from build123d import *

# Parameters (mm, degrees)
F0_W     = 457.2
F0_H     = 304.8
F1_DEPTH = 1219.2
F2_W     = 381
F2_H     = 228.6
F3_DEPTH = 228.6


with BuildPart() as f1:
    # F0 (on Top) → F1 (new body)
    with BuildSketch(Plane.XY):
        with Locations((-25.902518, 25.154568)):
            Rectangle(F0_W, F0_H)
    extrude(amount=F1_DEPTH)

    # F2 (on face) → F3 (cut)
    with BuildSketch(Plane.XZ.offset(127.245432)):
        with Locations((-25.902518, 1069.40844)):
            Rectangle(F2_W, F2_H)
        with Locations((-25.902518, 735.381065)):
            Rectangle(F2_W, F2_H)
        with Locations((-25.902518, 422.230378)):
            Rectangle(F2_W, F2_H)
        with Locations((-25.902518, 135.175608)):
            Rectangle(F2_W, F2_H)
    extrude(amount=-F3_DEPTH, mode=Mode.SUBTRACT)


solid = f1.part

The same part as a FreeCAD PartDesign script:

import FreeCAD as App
import Part
import Sketcher
Q = App.Units.Quantity


def add_polygon(sketch, points):
    """Adds a closed chain of lines whose ends are joined by coincident constraints."""
    first, n = sketch.GeometryCount, len(points)
    for a, b in zip(points, points[1:] + points[:1]):
        sketch.addGeometry(Part.LineSegment(App.Vector(*a, 0), App.Vector(*b, 0)), False)
    for i in range(n):
        sketch.addConstraint(Sketcher.Constraint("Coincident", first + i, 2, first + (i + 1) % n, 1))

doc = App.newDocument("Part")
body = doc.addObject("PartDesign::Body", "Body")

# Sketch on XY plane
sketch1 = body.newObject("Sketcher::SketchObject", "Sketch")
sketch1.AttachmentSupport = (doc.getObject("XY_Plane"), [""])
sketch1.MapMode = "FlatFace"
add_polygon(sketch1, [(-254.502518, 177.554568), (-254.502518, -127.245432), (202.697482, -127.245432), (202.697482, 177.554568)])  # lines 0-3
sketch1.addConstraint([
    Sketcher.Constraint("Vertical", 0),
    Sketcher.Constraint("Horizontal", 1),
    Sketcher.Constraint("Vertical", 2),
    Sketcher.Constraint("Horizontal", 3),
    Sketcher.Constraint("DistanceX", 1, 1, 1, 2, Q("18 in")),
    Sketcher.Constraint("DistanceY", 0, 2, 0, 1, Q("12 in")),
    Sketcher.Constraint("DistanceX", 0, 2, -1, 1, 254.502518),
    Sketcher.Constraint("DistanceY", 0, 2, -1, 1, 127.245432),
])
pad1 = body.newObject("PartDesign::Pad", "Pad")
pad1.Profile = sketch1
pad1.Length = Q("48 in")

# Sketch on XZ plane
sketch2 = body.newObject("Sketcher::SketchObject", "Sketch001")
sketch2.AttachmentSupport = (doc.getObject("XZ_Plane"), [""])
sketch2.MapMode = "FlatFace"
sketch2.AttachmentOffset = App.Placement(App.Vector(0, 0, 127.245432), App.Rotation())
add_polygon(sketch2, [(-216.402518, 1183.70844), (-216.402518, 955.10844), (164.597482, 955.10844), (164.597482, 1183.70844)])  # lines 0-3
add_polygon(sketch2, [(-216.402518, 849.681065), (-216.402518, 621.081065), (164.597482, 621.081065), (164.597482, 849.681065)])  # lines 4-7
add_polygon(sketch2, [(-216.402518, 536.530378), (-216.402518, 307.930378), (164.597482, 307.930378), (164.597482, 536.530378)])  # lines 8-11
add_polygon(sketch2, [(-216.402518, 249.475608), (-216.402518, 20.875608), (164.597482, 20.875608), (164.597482, 249.475608)])  # lines 12-15
sketch2.addConstraint([
    Sketcher.Constraint("Vertical", 0),
    Sketcher.Constraint("Horizontal", 1),
    Sketcher.Constraint("Vertical", 2),
    Sketcher.Constraint("Horizontal", 3),
    Sketcher.Constraint("Vertical", 4),
    Sketcher.Constraint("Horizontal", 5),
    Sketcher.Constraint("Vertical", 6),
    Sketcher.Constraint("Horizontal", 7),
    Sketcher.Constraint("Vertical", 8),
    Sketcher.Constraint("Horizontal", 9),
    Sketcher.Constraint("Vertical", 10),
    Sketcher.Constraint("Horizontal", 11),
    Sketcher.Constraint("Vertical", 12),
    Sketcher.Constraint("Horizontal", 13),
    Sketcher.Constraint("Vertical", 14),
    Sketcher.Constraint("Horizontal", 15),
    Sketcher.Constraint("Vertical", 3, 2, 4, 2),
    Sketcher.Constraint("Vertical", 2, 2, 5, 2),
    Sketcher.Constraint("Vertical", 7, 2, 8, 2),
    Sketcher.Constraint("Vertical", 6, 2, 9, 2),
    Sketcher.Constraint("Vertical", 11, 2, 12, 2),
    Sketcher.Constraint("Vertical", 10, 2, 13, 2),
    Sketcher.Constraint("Equal", 2, 4),
    Sketcher.Constraint("Equal", 6, 8),
    Sketcher.Constraint("Equal", 10, 12),
    Sketcher.Constraint("DistanceX", 1, 1, 1, 2, Q("15 in")),
    Sketcher.Constraint("DistanceY", 0, 2, 0, 1, Q("9 in")),
    Sketcher.Constraint("DistanceY", -1, 1, 0, 2, 955.10844),
    Sketcher.Constraint("DistanceY", -1, 1, 8, 2, 307.930378),
    Sketcher.Constraint("DistanceY", -1, 1, 14, 2, 249.475608),
    Sketcher.Constraint("DistanceX", 0, 2, -1, 1, 216.402518),
    Sketcher.Constraint("DistanceY", -1, 1, 4, 2, 621.081065),
])
pocket1 = body.newObject("PartDesign::Pocket", "Pocket")
pocket1.Profile = sketch2
pocket1.Length = Q("9 in")

doc.recompute()
